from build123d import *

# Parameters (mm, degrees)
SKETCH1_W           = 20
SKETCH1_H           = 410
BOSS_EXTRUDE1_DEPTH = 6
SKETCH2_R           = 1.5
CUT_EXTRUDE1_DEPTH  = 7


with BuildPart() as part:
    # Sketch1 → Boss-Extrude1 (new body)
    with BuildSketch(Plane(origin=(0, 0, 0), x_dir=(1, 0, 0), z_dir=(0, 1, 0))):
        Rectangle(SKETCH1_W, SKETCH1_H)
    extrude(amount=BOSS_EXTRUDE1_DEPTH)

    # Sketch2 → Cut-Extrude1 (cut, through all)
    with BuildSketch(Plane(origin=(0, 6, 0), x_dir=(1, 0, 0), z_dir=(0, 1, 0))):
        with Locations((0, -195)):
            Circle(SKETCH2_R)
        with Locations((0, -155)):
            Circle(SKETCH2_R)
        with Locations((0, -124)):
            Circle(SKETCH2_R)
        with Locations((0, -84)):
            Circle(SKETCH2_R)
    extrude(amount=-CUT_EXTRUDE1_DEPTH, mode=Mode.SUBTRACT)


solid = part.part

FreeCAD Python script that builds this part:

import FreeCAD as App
import Part
import Sketcher

doc = App.newDocument("Part")
body = doc.addObject("PartDesign::Body", "Body")

# Sketch on XZ plane
sketch1 = doc.addObject("Sketcher::SketchObject", "Sketch")
body.addObject(sketch1)
sketch1.AttachmentSupport = (doc.XZ_Plane, [""])
sketch1.MapMode = "FlatFace"
sketch1.addGeometry([
    Part.LineSegment(App.Vector(-10, -205, 0), App.Vector(-10, 205, 0)),
    Part.LineSegment(App.Vector(-10, 205, 0), App.Vector(10, 205, 0)),
    Part.LineSegment(App.Vector(10, 205, 0), App.Vector(10, -205, 0)),
    Part.LineSegment(App.Vector(10, -205, 0), App.Vector(-10, -205, 0)),
], False)
sketch1.addConstraint([
    Sketcher.Constraint("Coincident", 0, 2, 1, 1),
    Sketcher.Constraint("Coincident", 1, 2, 2, 1),
    Sketcher.Constraint("Coincident", 2, 2, 3, 1),
    Sketcher.Constraint("Coincident", 3, 2, 0, 1),
    Sketcher.Constraint("Vertical", 0),
    Sketcher.Constraint("Horizontal", 1),
    Sketcher.Constraint("Vertical", 2),
    Sketcher.Constraint("Horizontal", 3),
    Sketcher.Constraint("Symmetric", 0, 2, 2, 2, -1, 1),
    Sketcher.Constraint("DistanceX", 1, 1, 1, 2, 20.0),
    Sketcher.Constraint("DistanceY", 0, 1, 0, 2, 410.0),
])
pad1 = doc.addObject("PartDesign::Pad", "Pad")
body.addObject(pad1)
pad1.Profile = sketch1
pad1.Length = 6
pad1.Reversed = True

# Sketch on XZ plane
sketch2 = doc.addObject("Sketcher::SketchObject", "Sketch001")
body.addObject(sketch2)
sketch2.AttachmentSupport = (doc.XZ_Plane, [""])
sketch2.MapMode = "FlatFace"
sketch2.AttachmentOffset = App.Placement(App.Vector(0, 0, -6), App.Rotation())
sketch2.addGeometry([
    Part.Circle(App.Vector(0, 195, 0), App.Vector(0, 0, 1), 1.5),
    Part.Circle(App.Vector(0, 155, 0), App.Vector(0, 0, 1), 1.5),
    Part.Circle(App.Vector(0, 124, 0), App.Vector(0, 0, 1), 1.5),
    Part.Circle(App.Vector(0, 84, 0), App.Vector(0, 0, 1), 1.5),
], False)
sketch2.addConstraint([
    Sketcher.Constraint("Equal", 0, 1),
    Sketcher.Constraint("Equal", 1, 2),
    Sketcher.Constraint("Equal", 2, 3),
    Sketcher.Constraint("PointOnObject", 0, 3, -2),
    Sketcher.Constraint("PointOnObject", 1, 3, -2),
    Sketcher.Constraint("PointOnObject", 2, 3, -2),
    Sketcher.Constraint("PointOnObject", 3, 3, -2),
    Sketcher.Constraint("Diameter", 0, 3.0),
    Sketcher.Constraint("DistanceY", -1, 1, 0, 3, 195.0),
    Sketcher.Constraint("DistanceY", -1, 1, 1, 3, 155.0),
    Sketcher.Constraint("DistanceY", -1, 1, 2, 3, 124.0),
    Sketcher.Constraint("DistanceY", -1, 1, 3, 3, 84.0),
])
pocket1 = doc.addObject("PartDesign::Pocket", "Pocket")
body.addObject(pocket1)
pocket1.Profile = sketch2
pocket1.Type = "ThroughAll"
pocket1.Reversed = True

doc.recompute()
